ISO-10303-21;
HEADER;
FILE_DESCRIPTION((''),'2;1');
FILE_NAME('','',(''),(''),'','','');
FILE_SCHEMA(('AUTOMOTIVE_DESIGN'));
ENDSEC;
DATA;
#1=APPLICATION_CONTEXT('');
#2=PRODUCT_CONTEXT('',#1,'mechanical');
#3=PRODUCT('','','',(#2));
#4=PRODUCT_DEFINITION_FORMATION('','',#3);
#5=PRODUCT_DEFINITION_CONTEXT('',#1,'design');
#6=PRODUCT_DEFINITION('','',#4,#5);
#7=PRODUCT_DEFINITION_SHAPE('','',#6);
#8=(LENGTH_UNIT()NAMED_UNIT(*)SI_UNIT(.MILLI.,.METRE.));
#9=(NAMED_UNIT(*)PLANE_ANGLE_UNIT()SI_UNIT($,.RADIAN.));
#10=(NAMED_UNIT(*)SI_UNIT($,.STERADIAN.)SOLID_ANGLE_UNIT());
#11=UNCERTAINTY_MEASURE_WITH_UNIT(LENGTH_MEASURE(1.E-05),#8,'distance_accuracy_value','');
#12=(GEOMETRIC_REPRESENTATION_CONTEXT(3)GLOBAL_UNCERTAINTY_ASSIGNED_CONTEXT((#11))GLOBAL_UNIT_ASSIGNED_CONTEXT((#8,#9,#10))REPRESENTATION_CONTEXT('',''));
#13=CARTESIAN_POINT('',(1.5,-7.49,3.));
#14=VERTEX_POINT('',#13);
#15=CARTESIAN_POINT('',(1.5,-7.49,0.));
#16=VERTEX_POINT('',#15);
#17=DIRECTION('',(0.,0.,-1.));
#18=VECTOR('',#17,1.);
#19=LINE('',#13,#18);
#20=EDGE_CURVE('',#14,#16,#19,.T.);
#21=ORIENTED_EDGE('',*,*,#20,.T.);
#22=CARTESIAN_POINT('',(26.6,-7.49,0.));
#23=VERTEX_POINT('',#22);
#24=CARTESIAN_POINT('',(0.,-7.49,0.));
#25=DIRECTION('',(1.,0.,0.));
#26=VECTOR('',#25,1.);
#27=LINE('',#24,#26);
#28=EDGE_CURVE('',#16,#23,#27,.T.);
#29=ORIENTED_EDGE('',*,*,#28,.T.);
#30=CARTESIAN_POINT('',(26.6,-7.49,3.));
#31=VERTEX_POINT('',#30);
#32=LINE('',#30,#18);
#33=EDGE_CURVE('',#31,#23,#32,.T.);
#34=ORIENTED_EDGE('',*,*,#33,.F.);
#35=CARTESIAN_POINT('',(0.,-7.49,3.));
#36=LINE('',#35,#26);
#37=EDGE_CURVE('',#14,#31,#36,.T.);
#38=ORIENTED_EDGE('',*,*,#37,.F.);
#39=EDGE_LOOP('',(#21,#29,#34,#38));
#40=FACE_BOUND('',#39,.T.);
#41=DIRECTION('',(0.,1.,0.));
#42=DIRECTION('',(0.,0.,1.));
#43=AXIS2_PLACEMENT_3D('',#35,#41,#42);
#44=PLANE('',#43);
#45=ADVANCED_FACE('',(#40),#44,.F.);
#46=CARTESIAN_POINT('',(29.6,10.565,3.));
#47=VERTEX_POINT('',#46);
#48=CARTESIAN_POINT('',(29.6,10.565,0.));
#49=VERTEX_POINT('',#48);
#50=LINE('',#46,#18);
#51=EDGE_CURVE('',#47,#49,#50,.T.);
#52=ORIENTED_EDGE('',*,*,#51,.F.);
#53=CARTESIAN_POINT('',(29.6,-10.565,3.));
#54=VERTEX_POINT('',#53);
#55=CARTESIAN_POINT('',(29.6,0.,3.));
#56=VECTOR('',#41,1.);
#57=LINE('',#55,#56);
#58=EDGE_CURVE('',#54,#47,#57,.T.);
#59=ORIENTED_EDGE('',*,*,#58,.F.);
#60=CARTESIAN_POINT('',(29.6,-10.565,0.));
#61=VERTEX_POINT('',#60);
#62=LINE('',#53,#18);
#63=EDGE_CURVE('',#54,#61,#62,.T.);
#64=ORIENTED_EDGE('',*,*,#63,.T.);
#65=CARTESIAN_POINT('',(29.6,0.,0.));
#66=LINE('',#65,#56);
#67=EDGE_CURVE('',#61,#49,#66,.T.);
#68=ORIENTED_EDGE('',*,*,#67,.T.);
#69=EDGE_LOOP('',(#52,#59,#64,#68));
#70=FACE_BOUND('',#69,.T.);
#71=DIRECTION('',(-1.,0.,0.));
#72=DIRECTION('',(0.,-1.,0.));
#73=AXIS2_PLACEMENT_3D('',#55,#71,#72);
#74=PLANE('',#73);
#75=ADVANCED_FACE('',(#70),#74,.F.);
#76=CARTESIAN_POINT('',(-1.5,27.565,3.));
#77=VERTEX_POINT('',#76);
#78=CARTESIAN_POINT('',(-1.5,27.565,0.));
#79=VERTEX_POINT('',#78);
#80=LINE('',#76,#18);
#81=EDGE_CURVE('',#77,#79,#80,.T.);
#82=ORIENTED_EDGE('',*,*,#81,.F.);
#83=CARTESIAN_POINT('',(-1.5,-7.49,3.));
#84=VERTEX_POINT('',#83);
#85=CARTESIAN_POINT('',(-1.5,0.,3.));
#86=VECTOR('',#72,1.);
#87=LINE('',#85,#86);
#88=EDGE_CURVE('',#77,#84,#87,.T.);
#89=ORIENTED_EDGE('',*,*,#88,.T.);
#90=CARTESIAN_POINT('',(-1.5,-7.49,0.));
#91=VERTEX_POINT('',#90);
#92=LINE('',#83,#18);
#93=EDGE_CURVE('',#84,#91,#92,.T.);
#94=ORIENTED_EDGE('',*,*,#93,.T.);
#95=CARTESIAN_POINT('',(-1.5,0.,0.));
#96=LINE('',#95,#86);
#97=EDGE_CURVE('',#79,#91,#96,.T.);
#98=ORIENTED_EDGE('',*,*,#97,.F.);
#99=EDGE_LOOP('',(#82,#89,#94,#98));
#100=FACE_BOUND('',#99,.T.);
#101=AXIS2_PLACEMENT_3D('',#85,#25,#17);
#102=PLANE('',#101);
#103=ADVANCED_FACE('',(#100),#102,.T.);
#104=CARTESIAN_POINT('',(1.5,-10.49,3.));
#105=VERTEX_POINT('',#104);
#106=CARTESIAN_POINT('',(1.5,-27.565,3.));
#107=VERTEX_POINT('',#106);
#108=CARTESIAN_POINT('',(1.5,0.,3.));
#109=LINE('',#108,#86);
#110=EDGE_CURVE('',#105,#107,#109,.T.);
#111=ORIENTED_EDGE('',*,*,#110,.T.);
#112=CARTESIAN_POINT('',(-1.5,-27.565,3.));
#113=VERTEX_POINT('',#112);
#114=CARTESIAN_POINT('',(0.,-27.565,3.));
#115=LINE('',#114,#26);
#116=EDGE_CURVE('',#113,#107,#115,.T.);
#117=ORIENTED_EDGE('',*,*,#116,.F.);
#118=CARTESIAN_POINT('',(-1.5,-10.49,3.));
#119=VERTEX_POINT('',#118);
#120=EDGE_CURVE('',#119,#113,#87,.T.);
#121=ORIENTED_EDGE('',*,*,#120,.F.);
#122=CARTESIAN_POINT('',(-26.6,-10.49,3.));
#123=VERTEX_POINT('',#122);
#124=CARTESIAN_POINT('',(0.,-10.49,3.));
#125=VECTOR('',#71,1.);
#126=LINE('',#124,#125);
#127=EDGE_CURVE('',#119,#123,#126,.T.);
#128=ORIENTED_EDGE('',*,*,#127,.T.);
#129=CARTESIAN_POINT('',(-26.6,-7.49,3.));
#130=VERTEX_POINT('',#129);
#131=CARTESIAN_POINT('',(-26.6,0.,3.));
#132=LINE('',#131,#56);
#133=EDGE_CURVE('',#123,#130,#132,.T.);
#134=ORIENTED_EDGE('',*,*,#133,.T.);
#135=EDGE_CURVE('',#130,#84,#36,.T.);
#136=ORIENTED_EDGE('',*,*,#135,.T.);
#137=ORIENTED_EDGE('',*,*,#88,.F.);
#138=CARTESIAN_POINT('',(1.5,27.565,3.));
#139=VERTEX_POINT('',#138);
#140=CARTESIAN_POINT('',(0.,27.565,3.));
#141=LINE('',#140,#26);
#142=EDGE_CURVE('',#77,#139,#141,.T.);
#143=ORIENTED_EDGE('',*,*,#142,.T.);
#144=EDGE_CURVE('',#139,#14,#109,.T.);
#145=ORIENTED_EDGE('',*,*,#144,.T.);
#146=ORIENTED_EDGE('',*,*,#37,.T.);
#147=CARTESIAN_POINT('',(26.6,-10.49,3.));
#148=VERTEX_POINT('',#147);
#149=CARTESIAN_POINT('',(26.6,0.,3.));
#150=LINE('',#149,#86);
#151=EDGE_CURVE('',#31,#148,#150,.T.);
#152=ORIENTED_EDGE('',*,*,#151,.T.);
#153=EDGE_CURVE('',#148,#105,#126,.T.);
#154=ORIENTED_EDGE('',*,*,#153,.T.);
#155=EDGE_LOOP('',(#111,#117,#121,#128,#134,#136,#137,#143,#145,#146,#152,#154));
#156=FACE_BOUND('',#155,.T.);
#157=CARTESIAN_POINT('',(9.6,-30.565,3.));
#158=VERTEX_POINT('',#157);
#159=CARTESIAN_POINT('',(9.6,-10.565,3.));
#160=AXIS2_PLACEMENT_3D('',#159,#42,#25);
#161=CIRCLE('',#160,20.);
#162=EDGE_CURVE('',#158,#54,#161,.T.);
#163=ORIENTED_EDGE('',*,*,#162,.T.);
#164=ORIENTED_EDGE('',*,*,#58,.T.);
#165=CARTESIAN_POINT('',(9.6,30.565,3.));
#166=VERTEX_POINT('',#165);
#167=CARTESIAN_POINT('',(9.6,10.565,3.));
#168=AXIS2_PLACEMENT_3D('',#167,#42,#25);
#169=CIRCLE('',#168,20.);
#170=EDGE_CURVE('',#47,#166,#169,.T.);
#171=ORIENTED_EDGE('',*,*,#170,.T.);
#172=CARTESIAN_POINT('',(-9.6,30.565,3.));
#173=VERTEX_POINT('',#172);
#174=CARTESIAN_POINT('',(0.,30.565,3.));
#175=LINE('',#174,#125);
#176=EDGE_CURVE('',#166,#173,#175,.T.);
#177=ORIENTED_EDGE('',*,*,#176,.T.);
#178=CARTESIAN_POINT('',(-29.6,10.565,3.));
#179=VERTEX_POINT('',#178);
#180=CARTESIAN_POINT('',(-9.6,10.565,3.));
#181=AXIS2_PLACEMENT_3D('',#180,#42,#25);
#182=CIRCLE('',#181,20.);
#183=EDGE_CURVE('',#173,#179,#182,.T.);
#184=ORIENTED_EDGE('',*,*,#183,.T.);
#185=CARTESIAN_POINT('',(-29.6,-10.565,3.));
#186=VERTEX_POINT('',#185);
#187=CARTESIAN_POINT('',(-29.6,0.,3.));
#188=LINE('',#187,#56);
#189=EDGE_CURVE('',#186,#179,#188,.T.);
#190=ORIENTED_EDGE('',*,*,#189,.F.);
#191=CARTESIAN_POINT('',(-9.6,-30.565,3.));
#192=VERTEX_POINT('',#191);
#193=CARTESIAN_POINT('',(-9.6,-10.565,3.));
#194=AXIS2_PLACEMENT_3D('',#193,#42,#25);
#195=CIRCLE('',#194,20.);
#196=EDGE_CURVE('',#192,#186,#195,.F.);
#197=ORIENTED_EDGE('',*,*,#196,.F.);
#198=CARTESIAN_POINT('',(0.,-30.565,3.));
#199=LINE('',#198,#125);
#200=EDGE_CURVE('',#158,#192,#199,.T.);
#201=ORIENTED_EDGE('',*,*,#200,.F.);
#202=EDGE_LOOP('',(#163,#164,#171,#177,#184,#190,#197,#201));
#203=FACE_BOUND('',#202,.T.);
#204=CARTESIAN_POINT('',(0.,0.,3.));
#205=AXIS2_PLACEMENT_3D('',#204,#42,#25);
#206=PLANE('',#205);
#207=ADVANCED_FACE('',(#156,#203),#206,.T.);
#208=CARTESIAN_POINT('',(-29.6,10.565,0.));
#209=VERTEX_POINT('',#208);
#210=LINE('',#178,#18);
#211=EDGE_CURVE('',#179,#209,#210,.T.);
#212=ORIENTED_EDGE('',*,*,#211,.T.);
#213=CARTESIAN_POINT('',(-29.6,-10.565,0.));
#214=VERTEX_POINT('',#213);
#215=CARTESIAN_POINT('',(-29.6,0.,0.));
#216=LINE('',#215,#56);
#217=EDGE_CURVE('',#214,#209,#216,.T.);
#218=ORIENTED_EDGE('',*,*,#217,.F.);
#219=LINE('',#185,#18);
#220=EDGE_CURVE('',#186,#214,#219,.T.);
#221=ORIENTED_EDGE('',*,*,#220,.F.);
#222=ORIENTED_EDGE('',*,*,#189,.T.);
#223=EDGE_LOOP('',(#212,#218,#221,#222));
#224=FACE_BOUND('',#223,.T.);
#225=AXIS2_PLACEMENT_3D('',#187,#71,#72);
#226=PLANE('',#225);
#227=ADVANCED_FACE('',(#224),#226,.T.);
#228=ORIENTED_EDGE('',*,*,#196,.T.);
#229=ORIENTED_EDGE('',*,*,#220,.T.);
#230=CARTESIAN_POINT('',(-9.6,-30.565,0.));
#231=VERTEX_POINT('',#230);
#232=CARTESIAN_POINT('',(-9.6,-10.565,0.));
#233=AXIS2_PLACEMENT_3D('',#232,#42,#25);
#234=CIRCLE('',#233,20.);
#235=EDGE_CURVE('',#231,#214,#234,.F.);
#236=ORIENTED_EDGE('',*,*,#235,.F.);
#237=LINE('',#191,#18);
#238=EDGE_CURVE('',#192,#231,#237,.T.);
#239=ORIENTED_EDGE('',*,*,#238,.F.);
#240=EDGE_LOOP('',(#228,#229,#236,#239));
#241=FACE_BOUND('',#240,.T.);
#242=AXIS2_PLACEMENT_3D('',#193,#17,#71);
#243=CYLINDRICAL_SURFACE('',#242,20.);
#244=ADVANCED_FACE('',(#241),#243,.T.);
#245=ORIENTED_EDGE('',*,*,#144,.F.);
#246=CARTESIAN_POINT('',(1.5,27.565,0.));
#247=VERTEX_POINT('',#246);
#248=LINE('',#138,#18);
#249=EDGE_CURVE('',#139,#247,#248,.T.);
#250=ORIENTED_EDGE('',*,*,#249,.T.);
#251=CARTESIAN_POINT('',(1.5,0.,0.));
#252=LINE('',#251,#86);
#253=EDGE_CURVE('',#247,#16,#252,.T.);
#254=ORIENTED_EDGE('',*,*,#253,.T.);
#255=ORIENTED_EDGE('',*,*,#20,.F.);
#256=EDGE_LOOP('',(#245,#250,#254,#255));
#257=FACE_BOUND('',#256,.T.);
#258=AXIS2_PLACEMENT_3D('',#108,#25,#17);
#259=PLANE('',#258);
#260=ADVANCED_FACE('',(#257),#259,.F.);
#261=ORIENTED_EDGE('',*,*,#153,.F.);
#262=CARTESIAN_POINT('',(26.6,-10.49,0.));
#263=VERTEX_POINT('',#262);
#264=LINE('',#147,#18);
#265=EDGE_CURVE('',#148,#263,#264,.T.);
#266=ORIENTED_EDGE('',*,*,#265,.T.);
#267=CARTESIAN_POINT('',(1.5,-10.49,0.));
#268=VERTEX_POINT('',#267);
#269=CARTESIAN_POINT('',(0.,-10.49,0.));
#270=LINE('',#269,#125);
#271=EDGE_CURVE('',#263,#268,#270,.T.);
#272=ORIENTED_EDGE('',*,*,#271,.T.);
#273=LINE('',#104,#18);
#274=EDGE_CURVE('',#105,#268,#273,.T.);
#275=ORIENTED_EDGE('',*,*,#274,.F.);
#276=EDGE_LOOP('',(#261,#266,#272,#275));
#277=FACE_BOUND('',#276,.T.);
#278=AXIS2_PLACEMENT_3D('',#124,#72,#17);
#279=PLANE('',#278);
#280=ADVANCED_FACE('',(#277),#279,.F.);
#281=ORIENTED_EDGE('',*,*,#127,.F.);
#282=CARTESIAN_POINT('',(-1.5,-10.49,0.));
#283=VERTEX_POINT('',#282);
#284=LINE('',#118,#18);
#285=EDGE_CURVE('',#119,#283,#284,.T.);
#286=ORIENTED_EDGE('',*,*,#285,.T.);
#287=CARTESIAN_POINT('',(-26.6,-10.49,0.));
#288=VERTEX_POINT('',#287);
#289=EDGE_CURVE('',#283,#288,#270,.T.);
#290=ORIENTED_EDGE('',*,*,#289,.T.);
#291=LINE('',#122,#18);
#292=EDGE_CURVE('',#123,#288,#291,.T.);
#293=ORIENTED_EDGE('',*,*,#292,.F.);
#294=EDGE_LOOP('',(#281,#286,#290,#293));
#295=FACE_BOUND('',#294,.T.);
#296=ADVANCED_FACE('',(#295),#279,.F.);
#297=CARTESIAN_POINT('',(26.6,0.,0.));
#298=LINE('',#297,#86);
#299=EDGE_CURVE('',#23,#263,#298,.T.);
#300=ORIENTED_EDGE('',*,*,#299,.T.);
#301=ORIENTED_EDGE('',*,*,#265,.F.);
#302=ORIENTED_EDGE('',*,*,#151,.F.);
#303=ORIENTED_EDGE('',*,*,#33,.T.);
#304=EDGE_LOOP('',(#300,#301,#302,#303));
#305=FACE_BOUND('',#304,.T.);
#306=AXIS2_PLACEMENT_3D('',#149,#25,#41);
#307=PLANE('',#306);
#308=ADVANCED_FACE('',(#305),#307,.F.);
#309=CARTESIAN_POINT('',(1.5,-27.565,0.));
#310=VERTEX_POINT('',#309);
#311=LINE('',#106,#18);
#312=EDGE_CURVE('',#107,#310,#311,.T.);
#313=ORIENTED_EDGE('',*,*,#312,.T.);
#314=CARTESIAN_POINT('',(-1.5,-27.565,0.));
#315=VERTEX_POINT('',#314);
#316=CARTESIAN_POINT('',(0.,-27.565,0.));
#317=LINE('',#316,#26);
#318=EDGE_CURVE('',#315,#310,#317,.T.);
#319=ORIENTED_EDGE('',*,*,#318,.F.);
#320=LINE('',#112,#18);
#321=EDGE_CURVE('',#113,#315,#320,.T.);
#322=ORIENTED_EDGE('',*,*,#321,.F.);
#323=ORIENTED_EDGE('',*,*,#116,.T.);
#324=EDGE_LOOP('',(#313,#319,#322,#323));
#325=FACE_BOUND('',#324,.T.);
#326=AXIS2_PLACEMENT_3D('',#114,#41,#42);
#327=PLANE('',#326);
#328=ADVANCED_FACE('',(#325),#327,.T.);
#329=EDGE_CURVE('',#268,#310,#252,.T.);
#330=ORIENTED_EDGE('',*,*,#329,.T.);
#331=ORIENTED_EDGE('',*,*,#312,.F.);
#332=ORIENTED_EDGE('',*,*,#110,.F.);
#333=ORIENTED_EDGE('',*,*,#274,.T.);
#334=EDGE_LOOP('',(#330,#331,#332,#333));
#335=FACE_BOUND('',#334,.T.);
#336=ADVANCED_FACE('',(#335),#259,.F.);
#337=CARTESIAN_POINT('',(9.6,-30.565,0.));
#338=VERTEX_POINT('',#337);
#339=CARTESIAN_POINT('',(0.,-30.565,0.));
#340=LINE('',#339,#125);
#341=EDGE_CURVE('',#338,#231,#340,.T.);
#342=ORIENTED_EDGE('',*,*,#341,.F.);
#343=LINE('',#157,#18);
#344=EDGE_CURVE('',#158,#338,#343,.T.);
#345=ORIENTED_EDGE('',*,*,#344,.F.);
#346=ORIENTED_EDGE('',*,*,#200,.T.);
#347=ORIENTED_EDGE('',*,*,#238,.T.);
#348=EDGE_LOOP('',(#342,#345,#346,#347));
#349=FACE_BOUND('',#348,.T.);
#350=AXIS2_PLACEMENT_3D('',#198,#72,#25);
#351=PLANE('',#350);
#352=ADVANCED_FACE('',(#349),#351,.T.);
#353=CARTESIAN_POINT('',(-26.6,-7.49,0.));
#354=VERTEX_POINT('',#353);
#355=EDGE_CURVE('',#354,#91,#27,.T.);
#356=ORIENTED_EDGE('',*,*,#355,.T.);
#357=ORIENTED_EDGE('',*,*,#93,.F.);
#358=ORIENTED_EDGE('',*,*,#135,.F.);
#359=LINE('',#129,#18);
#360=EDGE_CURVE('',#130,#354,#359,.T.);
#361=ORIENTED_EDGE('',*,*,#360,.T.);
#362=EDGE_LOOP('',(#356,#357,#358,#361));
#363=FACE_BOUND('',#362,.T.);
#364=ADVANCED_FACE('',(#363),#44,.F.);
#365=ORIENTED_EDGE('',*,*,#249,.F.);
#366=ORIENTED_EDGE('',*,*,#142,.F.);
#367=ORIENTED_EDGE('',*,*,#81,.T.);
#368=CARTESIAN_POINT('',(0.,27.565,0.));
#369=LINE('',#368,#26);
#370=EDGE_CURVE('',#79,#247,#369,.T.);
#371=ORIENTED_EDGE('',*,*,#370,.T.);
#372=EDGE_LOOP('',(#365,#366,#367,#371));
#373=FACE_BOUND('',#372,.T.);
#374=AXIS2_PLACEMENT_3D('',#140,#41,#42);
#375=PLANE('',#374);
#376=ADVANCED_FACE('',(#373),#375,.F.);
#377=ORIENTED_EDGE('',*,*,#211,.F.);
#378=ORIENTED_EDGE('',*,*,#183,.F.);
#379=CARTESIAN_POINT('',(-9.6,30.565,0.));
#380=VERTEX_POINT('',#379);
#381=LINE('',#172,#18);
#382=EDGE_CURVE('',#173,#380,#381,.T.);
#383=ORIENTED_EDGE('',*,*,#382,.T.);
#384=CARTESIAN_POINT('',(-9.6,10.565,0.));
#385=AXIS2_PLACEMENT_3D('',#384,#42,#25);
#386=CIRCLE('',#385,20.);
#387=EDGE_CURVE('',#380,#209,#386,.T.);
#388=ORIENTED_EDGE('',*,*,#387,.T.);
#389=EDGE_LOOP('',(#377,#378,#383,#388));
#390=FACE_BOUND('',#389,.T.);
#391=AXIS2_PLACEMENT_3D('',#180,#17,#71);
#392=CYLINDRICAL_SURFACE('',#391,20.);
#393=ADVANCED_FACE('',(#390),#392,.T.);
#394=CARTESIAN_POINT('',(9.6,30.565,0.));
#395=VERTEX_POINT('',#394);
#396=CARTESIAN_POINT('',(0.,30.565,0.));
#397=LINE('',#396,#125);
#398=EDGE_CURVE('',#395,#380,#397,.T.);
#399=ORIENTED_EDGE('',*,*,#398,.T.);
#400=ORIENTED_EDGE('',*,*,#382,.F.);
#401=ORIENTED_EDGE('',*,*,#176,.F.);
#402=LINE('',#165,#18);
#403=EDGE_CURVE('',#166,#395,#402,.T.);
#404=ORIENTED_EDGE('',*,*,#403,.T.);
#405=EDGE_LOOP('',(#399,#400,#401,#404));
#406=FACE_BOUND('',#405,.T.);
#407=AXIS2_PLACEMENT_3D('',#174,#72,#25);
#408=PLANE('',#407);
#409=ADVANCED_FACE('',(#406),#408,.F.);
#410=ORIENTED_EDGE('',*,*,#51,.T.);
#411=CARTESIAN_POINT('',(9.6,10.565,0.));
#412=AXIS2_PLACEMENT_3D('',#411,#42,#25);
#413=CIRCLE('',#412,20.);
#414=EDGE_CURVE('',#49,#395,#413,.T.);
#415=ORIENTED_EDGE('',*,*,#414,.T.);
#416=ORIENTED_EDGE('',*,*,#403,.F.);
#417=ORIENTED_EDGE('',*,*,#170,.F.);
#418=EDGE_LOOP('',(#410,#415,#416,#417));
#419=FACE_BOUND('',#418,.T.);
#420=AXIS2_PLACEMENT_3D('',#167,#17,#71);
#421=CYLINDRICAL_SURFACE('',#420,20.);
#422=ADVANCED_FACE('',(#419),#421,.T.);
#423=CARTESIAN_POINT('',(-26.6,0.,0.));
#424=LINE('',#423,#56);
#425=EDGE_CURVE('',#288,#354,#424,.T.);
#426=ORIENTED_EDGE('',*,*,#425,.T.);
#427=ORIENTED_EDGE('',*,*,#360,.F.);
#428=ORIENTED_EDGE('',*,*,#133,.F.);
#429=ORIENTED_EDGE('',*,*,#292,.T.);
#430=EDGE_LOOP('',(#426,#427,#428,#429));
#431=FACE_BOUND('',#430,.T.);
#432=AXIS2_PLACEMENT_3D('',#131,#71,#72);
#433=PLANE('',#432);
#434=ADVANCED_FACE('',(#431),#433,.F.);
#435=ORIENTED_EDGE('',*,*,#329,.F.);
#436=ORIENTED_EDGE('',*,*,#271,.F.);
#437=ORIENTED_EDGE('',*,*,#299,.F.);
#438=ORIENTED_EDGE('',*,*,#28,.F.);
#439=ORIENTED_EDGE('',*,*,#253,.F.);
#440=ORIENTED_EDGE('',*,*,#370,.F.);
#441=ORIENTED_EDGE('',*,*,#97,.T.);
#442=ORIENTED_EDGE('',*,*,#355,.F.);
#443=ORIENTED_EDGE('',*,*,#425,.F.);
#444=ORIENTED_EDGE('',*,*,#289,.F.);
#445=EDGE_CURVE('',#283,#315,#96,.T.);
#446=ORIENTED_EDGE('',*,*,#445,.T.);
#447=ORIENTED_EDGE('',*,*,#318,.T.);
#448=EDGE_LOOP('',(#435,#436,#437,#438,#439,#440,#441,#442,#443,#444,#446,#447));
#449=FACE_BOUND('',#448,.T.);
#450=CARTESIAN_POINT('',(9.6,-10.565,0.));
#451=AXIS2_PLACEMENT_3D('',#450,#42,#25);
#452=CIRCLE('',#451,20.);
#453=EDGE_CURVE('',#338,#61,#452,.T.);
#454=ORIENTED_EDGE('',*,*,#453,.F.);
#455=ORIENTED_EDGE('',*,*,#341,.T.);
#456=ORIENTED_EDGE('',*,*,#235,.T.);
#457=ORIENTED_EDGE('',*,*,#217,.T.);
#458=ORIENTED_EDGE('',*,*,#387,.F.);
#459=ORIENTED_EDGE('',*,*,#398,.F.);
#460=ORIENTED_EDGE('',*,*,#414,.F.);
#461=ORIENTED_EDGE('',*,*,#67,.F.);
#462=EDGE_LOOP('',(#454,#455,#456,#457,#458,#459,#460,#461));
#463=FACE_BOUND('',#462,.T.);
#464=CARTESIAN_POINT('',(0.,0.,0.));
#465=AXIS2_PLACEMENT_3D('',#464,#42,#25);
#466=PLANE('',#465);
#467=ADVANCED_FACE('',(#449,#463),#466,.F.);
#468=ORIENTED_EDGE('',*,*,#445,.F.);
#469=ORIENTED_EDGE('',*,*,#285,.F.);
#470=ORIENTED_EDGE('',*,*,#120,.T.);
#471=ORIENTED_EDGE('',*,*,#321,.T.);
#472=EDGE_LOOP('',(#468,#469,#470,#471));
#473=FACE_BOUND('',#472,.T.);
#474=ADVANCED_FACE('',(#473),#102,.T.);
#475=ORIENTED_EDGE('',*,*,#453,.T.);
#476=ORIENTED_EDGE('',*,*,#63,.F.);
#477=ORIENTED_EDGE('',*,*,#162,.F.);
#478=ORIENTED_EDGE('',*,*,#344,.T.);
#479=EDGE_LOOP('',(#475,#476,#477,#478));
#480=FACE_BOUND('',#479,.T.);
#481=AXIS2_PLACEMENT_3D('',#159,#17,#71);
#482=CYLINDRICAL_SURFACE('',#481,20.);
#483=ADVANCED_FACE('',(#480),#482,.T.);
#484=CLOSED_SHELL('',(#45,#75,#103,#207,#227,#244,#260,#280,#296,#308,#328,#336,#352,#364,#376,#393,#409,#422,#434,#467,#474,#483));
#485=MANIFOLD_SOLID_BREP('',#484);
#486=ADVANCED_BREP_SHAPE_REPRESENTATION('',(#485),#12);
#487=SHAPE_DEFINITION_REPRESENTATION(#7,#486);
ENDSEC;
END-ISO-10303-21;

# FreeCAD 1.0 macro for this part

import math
import FreeCAD as App
import Part
import Sketcher
from FreeCAD import Vector
Q = App.Units.Quantity


def add_polygon(sketch, points):
    """Adds a closed chain of lines whose ends are joined by coincident constraints."""
    first, n = sketch.GeometryCount, len(points)
    for a, b in zip(points, points[1:] + points[:1]):
        sketch.addGeometry(Part.LineSegment(App.Vector(*a, 0), App.Vector(*b, 0)), False)
    for i in range(n):
        sketch.addConstraint(Sketcher.Constraint("Coincident", first + i, 2, first + (i + 1) % n, 1))

doc = App.newDocument("Part")
body = doc.addObject("PartDesign::Body", "Body")

# Sketch on XY plane
sketch1 = body.newObject("Sketcher::SketchObject", "Sketch")
sketch1.AttachmentSupport = (doc.getObject("XY_Plane"), [""])
sketch1.MapMode = "FlatFace"
sketch1.addGeometry(Part.LineSegment(Vector(-9.6, -30.6, 0), Vector(9.6, -30.6, 0)), False)  # 0
sketch1.addGeometry(Part.ArcOfCircle(Part.Circle(Vector(9.6, -10.6, 0), Vector(0, 0, 1), 20), math.radians(-90), math.radians(0)), False)  # 1
sketch1.addGeometry(Part.LineSegment(Vector(29.6, -10.6, 0), Vector(29.6, 10.6, 0)), False)  # 2
sketch1.addGeometry(Part.ArcOfCircle(Part.Circle(Vector(9.6, 10.6, 0), Vector(0, 0, 1), 20), math.radians(0), math.radians(90)), False)  # 3
sketch1.addGeometry(Part.LineSegment(Vector(9.6, 30.6, 0), Vector(-9.6, 30.6, 0)), False)  # 4
sketch1.addGeometry(Part.ArcOfCircle(Part.Circle(Vector(-9.6, 10.6, 0), Vector(0, 0, 1), 20), math.radians(90), math.radians(180)), False)  # 5
sketch1.addGeometry(Part.LineSegment(Vector(-29.6, 10.6, 0), Vector(-29.6, -10.6, 0)), False)  # 6
sketch1.addGeometry(Part.ArcOfCircle(Part.Circle(Vector(-9.6, -10.6, 0), Vector(0, 0, 1), 20), math.radians(180), math.radians(270)), False)  # 7
add_polygon(sketch1, [(-1.5, -10.5), (-26.6, -10.5), (-26.6, -7.5), (-1.5, -7.5), (-1.5, 27.6), (1.5, 27.6), (1.5, -7.5), (26.6, -7.5), (26.6, -10.5), (1.5, -10.5), (1.5, -27.6), (-1.5, -27.6)])  # lines 8-19
sketch1.addConstraint([
    Sketcher.Constraint("Tangent", 0, 2, 1, 1),
    Sketcher.Constraint("Tangent", 1, 2, 2, 1),
    Sketcher.Constraint("Tangent", 2, 2, 3, 1),
    Sketcher.Constraint("Tangent", 3, 2, 4, 1),
    Sketcher.Constraint("Tangent", 4, 2, 5, 1),
    Sketcher.Constraint("Tangent", 5, 2, 6, 1),
    Sketcher.Constraint("Tangent", 6, 2, 7, 1),
    Sketcher.Constraint("Tangent", 7, 2, 0, 1),
    Sketcher.Constraint("Horizontal", 0),
    Sketcher.Constraint("Vertical", 2),
    Sketcher.Constraint("Horizontal", 4),
    Sketcher.Constraint("Vertical", 6),
    Sketcher.Constraint("Horizontal", 8),
    Sketcher.Constraint("Vertical", 9),
    Sketcher.Constraint("Horizontal", 10),
    Sketcher.Constraint("Vertical", 11),
    Sketcher.Constraint("Horizontal", 12),
    Sketcher.Constraint("Vertical", 13),
    Sketcher.Constraint("Horizontal", 14),
    Sketcher.Constraint("Vertical", 15),
    Sketcher.Constraint("Horizontal", 16),
    Sketcher.Constraint("Vertical", 17),
    Sketcher.Constraint("Horizontal", 18),
    Sketcher.Constraint("Vertical", 19),
    Sketcher.Constraint("Equal", 1, 3),
    Sketcher.Constraint("Equal", 3, 5),
    Sketcher.Constraint("Equal", 5, 7),
    Sketcher.Constraint("Symmetric", 1, 3, 5, 3, -1, 1),
    Sketcher.Constraint("Symmetric", 11, 2, 17, 2, -1, 1),
    Sketcher.Constraint("Symmetric", 10, 2, 13, 2, -2),
    Sketcher.Constraint("Symmetric", 8, 2, 15, 2, -2),
    Sketcher.Constraint("Vertical", 11, 2, 18, 2),
    Sketcher.Constraint("Equal", 18, 9),
    Sketcher.Constraint("Radius", 1, Q("20 mm")),
    Sketcher.Constraint("DistanceX", 12, 1, 12, 2, Q("3 mm")),
    Sketcher.Constraint("DistanceX", 0, 1, 0, 2, Q("19.2 mm")),
    Sketcher.Constraint("DistanceX", 8, 2, 8, 1, Q("25.1 mm")),
    Sketcher.Constraint("DistanceY", 11, 2, 4, 2, Q("3 mm")),
    Sketcher.Constraint("DistanceY", 2, 1, 2, 2, Q("21.13 mm")),
    Sketcher.Constraint("DistanceY", 11, 1, 11, 2, Q("35.055 mm")),
])
pad1 = body.newObject("PartDesign::Pad", "Pad")
pad1.Profile = sketch1
pad1.Length = 3

doc.recompute()
